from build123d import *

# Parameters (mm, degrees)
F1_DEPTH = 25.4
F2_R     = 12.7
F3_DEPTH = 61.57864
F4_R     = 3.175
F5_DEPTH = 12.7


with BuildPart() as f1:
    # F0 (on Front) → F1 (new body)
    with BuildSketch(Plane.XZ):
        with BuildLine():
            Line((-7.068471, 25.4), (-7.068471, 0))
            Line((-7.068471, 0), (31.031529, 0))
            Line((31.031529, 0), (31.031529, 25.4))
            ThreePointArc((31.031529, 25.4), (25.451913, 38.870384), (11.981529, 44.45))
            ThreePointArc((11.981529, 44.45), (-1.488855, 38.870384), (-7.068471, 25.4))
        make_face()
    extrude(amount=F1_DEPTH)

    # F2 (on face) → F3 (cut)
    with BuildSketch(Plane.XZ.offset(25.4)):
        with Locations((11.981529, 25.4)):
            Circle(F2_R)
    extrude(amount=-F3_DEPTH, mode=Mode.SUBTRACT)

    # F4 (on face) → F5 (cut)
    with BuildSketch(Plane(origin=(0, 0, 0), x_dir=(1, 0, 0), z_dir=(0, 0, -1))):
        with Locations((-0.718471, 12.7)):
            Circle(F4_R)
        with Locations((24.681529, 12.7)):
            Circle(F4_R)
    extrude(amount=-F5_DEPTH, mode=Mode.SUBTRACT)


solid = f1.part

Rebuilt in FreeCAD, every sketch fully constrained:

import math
import FreeCAD as App
import Part
import Sketcher
Q = App.Units.Quantity

doc = App.newDocument("Part")
params = doc.addObject("Spreadsheet::Sheet", "Params")
for row, (alias, value) in enumerate([
    ("sketch1_height", "1 in"),
    ("sketch1_radius", "0.75 in"),
    ("pad1_length", "1 in"),
    ("sketch2_diameter", "1 in"),
    ("pocket1_length", "61.57864 mm"),
    ("sketch3_diameter", "0.25 in"),
    ("pocket2_length", "0.5 in"),
], start=1):
    params.set(f"A{row}", alias)
    params.set(f"B{row}", "=" + value)
    params.setAlias(f"B{row}", alias)

body = doc.addObject("PartDesign::Body", "Body")

# Sketch on XZ plane
sketch1 = body.newObject("Sketcher::SketchObject", "Sketch")
sketch1.AttachmentSupport = (doc.getObject("XZ_Plane"), [""])
sketch1.MapMode = "FlatFace"
sketch1.addGeometry([
    Part.LineSegment(App.Vector(-7, 25, 0), App.Vector(-7, 0, 0)),  # 0
    Part.LineSegment(App.Vector(-7, 0, 0), App.Vector(31, 0, 0)),  # 1
    Part.LineSegment(App.Vector(31, 0, 0), App.Vector(31, 25, 0)),  # 2
    Part.ArcOfCircle(Part.Circle(App.Vector(12, 25, 0), App.Vector(0, 0, 1), 19), math.radians(0), math.radians(90)),  # 3
    Part.ArcOfCircle(Part.Circle(App.Vector(12, 25, 0), App.Vector(0, 0, 1), 19), math.radians(90), math.radians(180)),  # 4
], False)
sketch1.addConstraint([
    Sketcher.Constraint("Coincident", 0, 2, 1, 1),
    Sketcher.Constraint("Coincident", 1, 2, 2, 1),
    Sketcher.Constraint("Tangent", 2, 2, 3, 1),
    Sketcher.Constraint("Tangent", 3, 2, 4, 1),
    Sketcher.Constraint("Tangent", 4, 2, 0, 1),
    Sketcher.Constraint("Vertical", 0),
    Sketcher.Constraint("Horizontal", 1),
    Sketcher.Constraint("Vertical", 2),
    Sketcher.Constraint("Equal", 3, 4),
    Sketcher.Constraint("PointOnObject", 0, 2, -1),
    Sketcher.Constraint("Vertical", 4, 3, 3, 2),
    Sketcher.Constraint("DistanceY", 0, 2, 0, 1, Q("1 in")),
    Sketcher.Constraint("Radius", 3, Q("0.75 in")),
    Sketcher.Constraint("DistanceX", -1, 1, 3, 3, 11.981528),
])
sketch1.setExpression("Constraints[11]", "Params.sketch1_height")
sketch1.setExpression("Constraints[12]", "Params.sketch1_radius")
pad1 = body.newObject("PartDesign::Pad", "Pad")
pad1.Profile = sketch1
pad1.setExpression("Length", "Params.pad1_length")

# Sketch on XZ plane
sketch2 = body.newObject("Sketcher::SketchObject", "Sketch001")
sketch2.AttachmentSupport = (doc.getObject("XZ_Plane"), [""])
sketch2.MapMode = "FlatFace"
sketch2.AttachmentOffset = App.Placement(App.Vector(0, 0, 1 * 25.4), App.Rotation())
sketch2.addGeometry(Part.Circle(App.Vector(12, 25, 0), App.Vector(0, 0, 1), 13), False)
sketch2.addConstraint([
    Sketcher.Constraint("Diameter", 0, Q("1 in")),
    Sketcher.Constraint("DistanceY", -1, 1, 0, 3, Q("1 in")),
    Sketcher.Constraint("DistanceX", -1, 1, 0, 3, 11.981529),
])
sketch2.setExpression("Constraints[0]", "Params.sketch2_diameter")
pocket1 = body.newObject("PartDesign::Pocket", "Pocket")
pocket1.Profile = sketch2
pocket1.setExpression("Length", "Params.pocket1_length")

# Sketch on XY plane
sketch3 = body.newObject("Sketcher::SketchObject", "Sketch002")
sketch3.AttachmentSupport = (doc.getObject("XY_Plane"), [""])
sketch3.MapMode = "FlatFace"
sketch3.addGeometry([
    Part.Circle(App.Vector(-0.7, -12.7, 0), App.Vector(0, 0, 1), 3.2),
    Part.Circle(App.Vector(24.7, -12.7, 0), App.Vector(0, 0, 1), 3.2),
], False)
sketch3.addConstraint([
    Sketcher.Constraint("Equal", 0, 1),
    Sketcher.Constraint("Horizontal", 0, 3, 1, 3),
    Sketcher.Constraint("Diameter", 0, Q("0.25 in")),
    Sketcher.Constraint("DistanceX", 0, 3, 1, 3, Q("1 in")),
    Sketcher.Constraint("DistanceY", 0, 3, -1, 1, Q("0.5 in")),
    Sketcher.Constraint("DistanceX", 0, 3, -1, 1, 0.718471),
])
sketch3.setExpression("Constraints[2]", "Params.sketch3_diameter")
pocket2 = body.newObject("PartDesign::Pocket", "Pocket001")
pocket2.Profile = sketch3
pocket2.setExpression("Length", "Params.pocket2_length")
pocket2.Reversed = True

doc.recompute()
